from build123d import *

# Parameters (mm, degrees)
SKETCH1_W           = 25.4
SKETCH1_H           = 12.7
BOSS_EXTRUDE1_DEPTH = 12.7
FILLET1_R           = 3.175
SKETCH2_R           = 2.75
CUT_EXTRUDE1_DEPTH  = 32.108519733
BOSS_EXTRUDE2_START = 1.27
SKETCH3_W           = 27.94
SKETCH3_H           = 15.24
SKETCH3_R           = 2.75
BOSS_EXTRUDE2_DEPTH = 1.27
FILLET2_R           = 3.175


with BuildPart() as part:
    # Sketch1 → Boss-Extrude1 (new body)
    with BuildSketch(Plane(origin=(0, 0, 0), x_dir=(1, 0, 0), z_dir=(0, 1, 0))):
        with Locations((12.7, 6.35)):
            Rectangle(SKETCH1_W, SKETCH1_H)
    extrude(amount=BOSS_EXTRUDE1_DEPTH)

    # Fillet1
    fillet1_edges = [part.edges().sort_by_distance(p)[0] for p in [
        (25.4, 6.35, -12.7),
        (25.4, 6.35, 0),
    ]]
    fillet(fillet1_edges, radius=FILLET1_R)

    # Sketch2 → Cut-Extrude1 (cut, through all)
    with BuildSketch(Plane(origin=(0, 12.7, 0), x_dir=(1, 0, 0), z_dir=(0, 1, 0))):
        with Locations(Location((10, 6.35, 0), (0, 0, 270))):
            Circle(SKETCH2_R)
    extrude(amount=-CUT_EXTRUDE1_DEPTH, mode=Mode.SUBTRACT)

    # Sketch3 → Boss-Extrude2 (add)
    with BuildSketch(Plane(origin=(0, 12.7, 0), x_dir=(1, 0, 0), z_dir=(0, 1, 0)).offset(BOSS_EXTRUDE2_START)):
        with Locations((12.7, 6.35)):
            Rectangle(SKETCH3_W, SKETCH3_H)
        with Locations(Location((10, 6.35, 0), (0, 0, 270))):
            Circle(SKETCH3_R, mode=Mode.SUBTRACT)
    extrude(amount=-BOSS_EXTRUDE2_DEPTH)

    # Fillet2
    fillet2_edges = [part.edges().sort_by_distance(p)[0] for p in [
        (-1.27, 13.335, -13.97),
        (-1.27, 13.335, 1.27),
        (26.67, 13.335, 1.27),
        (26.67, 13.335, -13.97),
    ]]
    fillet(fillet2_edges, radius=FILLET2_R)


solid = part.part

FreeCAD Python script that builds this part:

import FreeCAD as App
import Part
import Sketcher
Q = App.Units.Quantity


def edges_at(feature, points):
    """Names of the edges that pass closest to the given points."""
    edges = feature.Shape.Edges
    near = lambda p: min(range(len(edges)), key=lambda i: edges[i].distToShape(Part.Vertex(*p))[0])
    return sorted({f"Edge{near(p) + 1}" for p in points})

doc = App.newDocument("Part")
body = doc.addObject("PartDesign::Body", "Body")

sketch1 = body.newObject("Sketcher::SketchObject", "Sketch")
sketch1.AttachmentSupport = (doc.getObject("XZ_Plane"), [""])
sketch1.MapMode = "FlatFace"
sketch1.addGeometry([
    Part.LineSegment(App.Vector(0, -13, 0), App.Vector(0, 0, 0)),
    Part.LineSegment(App.Vector(0, 0, 0), App.Vector(25, 0, 0)),
    Part.LineSegment(App.Vector(25, 0, 0), App.Vector(25, -13, 0)),
    Part.LineSegment(App.Vector(25, -13, 0), App.Vector(0, -13, 0)),
], False)
sketch1.addConstraint([
    Sketcher.Constraint("Coincident", 0, 2, 1, 1),
    Sketcher.Constraint("Coincident", 1, 2, 2, 1),
    Sketcher.Constraint("Coincident", 2, 2, 3, 1),
    Sketcher.Constraint("Coincident", 3, 2, 0, 1),
    Sketcher.Constraint("Vertical", 0),
    Sketcher.Constraint("Horizontal", 1),
    Sketcher.Constraint("Vertical", 2),
    Sketcher.Constraint("Horizontal", 3),
    Sketcher.Constraint("Coincident", 0, 2, -1, 1),
    Sketcher.Constraint("DistanceX", 1, 1, 1, 2, Q("1 in")),
    Sketcher.Constraint("DistanceY", 0, 1, 0, 2, Q("0.5 in")),
])
pad1 = body.newObject("PartDesign::Pad", "Pad")
pad1.Profile = sketch1
pad1.Length = Q("0.5 in")
pad1.Reversed = True
doc.recompute()

fillet = body.newObject("PartDesign::Fillet", "Fillet")
fillet.Base = (pad1, edges_at(pad1, [(25.4, 6.35, -12.7), (25.4, 6.35, 0)]))
fillet.Radius = Q("0.125 in")

sketch2 = body.newObject("Sketcher::SketchObject", "Sketch001")
sketch2.AttachmentSupport = (doc.getObject("XZ_Plane"), [""])
sketch2.MapMode = "FlatFace"
sketch2.AttachmentOffset = App.Placement(App.Vector(0, 0, -0.5 * 25.4), App.Rotation())
sketch2.addGeometry(Part.Circle(App.Vector(10, -6.3, 0), App.Vector(0, 0, 1), 2.8), False)
sketch2.addConstraint([
    Sketcher.Constraint("Diameter", 0, 5.5),
    Sketcher.Constraint("DistanceY", 0, 3, -1, 1, Q("0.25 in")),
    Sketcher.Constraint("DistanceX", -1, 1, 0, 3, 10.0),
])
pocket1 = body.newObject("PartDesign::Pocket", "Pocket")
pocket1.Profile = sketch2
pocket1.Type = "ThroughAll"
pocket1.Reversed = True

sketch3 = body.newObject("Sketcher::SketchObject", "Sketch002")
sketch3.AttachmentSupport = (doc.getObject("XZ_Plane"), [""])
sketch3.MapMode = "FlatFace"
sketch3.AttachmentOffset = App.Placement(App.Vector(0, 0, -0.55 * 25.4), App.Rotation())
sketch3.addGeometry([
    Part.LineSegment(App.Vector(-1.3, -14, 0), App.Vector(-1.3, 1.3, 0)),
    Part.LineSegment(App.Vector(-1.3, 1.3, 0), App.Vector(26.7, 1.3, 0)),
    Part.LineSegment(App.Vector(26.7, 1.3, 0), App.Vector(26.7, -14, 0)),
    Part.LineSegment(App.Vector(26.7, -14, 0), App.Vector(-1.3, -14, 0)),
    Part.Circle(App.Vector(10, -6.3, 0), App.Vector(0, 0, 1), 2.8),
], False)
sketch3.addConstraint([
    Sketcher.Constraint("Coincident", 0, 2, 1, 1),
    Sketcher.Constraint("Coincident", 1, 2, 2, 1),
    Sketcher.Constraint("Coincident", 2, 2, 3, 1),
    Sketcher.Constraint("Coincident", 3, 2, 0, 1),
    Sketcher.Constraint("Vertical", 0),
    Sketcher.Constraint("Horizontal", 1),
    Sketcher.Constraint("Vertical", 2),
    Sketcher.Constraint("Horizontal", 3),
    Sketcher.Constraint("DistanceX", 1, 1, 1, 2, Q("1.1 in")),
    Sketcher.Constraint("DistanceY", 0, 1, 0, 2, Q("0.6 in")),
    Sketcher.Constraint("DistanceY", 4, 3, 0, 2, Q("0.3 in")),
    Sketcher.Constraint("Diameter", 4, 5.5),
    Sketcher.Constraint("DistanceY", 4, 3, -1, 1, Q("0.25 in")),
    Sketcher.Constraint("DistanceX", 0, 2, -1, 1, Q("0.05 in")),
    Sketcher.Constraint("DistanceX", -1, 1, 4, 3, 10.0),
])
pad2 = body.newObject("PartDesign::Pad", "Pad001")
pad2.Profile = sketch3
pad2.Length = Q("0.05 in")
doc.recompute()

fillet2 = body.newObject("PartDesign::Fillet", "Fillet001")
fillet2.Base = (pad2, edges_at(pad2, [
    (-1.27, 13.335, -13.97),
    (-1.27, 13.335, 1.27),
    (26.67, 13.335, 1.27),
    (26.67, 13.335, -13.97),
]))
fillet2.Radius = Q("0.125 in")

doc.recompute()
